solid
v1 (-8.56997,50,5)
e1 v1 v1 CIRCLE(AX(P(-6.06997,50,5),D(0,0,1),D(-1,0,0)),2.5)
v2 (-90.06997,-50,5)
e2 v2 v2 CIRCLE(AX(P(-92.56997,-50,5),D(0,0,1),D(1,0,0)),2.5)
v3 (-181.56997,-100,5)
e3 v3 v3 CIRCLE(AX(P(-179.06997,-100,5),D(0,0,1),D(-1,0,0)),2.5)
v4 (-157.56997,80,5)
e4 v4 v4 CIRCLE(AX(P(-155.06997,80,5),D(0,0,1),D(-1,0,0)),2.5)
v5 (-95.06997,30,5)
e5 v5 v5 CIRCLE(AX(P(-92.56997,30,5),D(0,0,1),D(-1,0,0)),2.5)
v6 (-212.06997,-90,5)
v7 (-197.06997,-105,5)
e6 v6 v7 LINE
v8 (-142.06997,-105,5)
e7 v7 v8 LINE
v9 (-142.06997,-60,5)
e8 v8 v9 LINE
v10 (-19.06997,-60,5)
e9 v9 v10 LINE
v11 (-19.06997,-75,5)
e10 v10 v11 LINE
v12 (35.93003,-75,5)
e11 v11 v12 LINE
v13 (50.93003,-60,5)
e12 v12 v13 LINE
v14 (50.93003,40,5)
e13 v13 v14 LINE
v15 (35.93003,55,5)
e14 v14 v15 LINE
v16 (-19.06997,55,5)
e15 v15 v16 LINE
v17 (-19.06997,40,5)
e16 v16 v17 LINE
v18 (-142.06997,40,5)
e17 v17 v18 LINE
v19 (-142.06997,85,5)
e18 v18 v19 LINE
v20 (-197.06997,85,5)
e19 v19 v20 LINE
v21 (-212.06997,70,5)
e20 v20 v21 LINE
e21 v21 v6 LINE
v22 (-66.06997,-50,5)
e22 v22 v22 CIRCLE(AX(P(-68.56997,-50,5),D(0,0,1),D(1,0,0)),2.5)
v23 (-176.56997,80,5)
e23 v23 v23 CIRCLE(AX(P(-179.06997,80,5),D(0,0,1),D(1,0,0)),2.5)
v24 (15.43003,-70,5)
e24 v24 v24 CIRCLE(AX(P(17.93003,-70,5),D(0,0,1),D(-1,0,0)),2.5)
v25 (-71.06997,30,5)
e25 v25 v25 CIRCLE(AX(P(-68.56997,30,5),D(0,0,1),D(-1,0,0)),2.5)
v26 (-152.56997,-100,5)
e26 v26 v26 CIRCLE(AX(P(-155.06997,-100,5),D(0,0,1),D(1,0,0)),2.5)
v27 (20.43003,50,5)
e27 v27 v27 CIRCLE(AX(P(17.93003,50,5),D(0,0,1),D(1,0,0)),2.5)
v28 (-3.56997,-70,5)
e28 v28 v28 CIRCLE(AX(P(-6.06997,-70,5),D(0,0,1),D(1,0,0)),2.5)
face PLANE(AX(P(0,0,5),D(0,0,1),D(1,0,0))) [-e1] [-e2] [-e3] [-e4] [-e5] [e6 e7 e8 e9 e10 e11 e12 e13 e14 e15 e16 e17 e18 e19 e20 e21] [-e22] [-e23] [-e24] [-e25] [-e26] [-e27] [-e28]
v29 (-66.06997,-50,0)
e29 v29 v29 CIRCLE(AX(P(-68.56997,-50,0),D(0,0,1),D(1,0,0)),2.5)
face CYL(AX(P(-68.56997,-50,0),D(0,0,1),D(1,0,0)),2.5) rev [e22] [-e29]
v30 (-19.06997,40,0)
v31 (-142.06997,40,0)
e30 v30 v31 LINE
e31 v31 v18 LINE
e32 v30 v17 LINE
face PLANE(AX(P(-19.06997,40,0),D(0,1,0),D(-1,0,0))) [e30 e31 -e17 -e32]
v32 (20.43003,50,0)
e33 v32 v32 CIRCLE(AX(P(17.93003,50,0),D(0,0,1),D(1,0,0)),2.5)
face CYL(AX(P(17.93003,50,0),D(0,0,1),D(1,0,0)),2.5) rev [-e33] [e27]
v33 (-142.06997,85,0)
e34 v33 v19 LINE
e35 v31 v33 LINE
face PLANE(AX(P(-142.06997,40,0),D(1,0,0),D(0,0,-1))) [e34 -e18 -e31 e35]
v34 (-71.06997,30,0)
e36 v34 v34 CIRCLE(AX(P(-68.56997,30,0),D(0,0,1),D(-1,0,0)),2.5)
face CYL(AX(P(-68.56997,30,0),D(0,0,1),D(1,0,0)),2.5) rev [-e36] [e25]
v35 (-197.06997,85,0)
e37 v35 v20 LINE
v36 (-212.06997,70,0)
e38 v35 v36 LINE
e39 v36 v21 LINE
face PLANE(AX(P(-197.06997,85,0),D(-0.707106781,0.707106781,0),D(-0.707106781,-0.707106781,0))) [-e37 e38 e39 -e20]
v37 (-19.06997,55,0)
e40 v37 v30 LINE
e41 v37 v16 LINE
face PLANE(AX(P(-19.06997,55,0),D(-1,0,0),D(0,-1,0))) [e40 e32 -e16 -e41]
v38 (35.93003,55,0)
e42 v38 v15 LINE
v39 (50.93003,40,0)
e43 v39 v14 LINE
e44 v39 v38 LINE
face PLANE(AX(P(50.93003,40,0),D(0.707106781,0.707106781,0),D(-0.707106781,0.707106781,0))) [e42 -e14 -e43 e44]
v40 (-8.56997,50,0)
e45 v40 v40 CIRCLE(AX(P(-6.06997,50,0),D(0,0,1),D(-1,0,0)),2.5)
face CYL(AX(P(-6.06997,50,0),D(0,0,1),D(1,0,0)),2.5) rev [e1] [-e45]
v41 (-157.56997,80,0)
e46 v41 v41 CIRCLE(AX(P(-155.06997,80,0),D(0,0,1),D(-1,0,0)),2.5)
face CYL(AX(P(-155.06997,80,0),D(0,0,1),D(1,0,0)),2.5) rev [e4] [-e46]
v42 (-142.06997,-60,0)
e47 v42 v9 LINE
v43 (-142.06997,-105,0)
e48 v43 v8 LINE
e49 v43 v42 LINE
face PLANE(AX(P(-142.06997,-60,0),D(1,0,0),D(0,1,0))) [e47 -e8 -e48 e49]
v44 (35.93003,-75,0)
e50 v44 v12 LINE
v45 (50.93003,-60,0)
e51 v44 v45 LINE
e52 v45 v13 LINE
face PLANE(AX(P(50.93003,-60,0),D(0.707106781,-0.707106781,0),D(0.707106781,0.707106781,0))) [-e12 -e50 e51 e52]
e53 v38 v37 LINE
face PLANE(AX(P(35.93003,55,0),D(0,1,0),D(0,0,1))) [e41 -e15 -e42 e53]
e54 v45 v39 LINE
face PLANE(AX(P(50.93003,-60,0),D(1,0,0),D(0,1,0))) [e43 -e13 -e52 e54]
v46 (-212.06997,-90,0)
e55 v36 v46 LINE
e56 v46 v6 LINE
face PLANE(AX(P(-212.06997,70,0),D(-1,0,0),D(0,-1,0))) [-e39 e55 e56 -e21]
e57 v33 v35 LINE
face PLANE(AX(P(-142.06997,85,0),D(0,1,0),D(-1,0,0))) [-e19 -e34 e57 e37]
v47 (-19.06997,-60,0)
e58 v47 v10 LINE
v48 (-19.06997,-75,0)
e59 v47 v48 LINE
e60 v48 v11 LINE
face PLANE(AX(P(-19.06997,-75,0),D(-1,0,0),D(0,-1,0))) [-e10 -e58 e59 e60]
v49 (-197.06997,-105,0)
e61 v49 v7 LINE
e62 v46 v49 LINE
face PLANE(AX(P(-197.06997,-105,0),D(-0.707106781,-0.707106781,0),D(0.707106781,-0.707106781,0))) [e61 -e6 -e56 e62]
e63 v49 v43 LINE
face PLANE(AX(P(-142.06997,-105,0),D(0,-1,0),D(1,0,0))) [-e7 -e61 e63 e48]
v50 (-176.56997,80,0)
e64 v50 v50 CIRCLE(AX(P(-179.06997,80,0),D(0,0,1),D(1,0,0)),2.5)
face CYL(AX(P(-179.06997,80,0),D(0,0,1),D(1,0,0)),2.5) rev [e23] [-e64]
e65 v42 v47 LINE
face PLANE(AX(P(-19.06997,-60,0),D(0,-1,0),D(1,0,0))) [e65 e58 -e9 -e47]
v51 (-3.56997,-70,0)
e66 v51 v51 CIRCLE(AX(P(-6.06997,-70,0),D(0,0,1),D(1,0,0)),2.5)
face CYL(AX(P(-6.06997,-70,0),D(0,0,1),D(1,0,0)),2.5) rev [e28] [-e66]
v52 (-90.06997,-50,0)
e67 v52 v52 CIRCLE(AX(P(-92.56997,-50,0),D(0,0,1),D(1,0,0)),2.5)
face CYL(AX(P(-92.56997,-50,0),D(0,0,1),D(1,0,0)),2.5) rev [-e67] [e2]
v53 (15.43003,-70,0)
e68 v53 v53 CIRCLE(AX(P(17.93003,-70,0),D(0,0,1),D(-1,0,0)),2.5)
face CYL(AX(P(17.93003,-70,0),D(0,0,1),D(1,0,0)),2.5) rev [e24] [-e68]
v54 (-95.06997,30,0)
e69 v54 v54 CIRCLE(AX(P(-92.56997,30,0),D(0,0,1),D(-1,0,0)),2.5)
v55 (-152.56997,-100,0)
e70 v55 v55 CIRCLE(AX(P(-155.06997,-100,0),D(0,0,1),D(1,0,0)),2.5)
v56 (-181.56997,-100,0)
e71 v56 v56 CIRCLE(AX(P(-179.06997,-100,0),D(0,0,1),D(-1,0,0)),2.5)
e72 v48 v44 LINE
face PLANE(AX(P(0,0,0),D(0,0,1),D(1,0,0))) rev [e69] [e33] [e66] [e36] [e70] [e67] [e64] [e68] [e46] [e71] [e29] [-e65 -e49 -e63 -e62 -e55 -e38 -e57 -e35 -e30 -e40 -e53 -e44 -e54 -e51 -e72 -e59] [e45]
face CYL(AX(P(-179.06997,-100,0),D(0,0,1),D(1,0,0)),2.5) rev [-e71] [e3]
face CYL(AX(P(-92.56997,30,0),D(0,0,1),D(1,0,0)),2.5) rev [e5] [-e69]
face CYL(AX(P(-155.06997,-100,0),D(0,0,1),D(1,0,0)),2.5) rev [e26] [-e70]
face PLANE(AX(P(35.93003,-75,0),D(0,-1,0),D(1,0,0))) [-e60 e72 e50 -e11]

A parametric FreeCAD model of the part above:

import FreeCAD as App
import Part
import Sketcher
Q = App.Units.Quantity

doc = App.newDocument("Part")
body = doc.addObject("PartDesign::Body", "Body")

# Sketch on XY plane
sketch1 = body.newObject("Sketcher::SketchObject", "Sketch")
sketch1.AttachmentSupport = (doc.getObject("XY_Plane"), [""])
sketch1.MapMode = "FlatFace"
sketch1.AttachmentOffset = App.Placement(App.Vector(0, 0, 5), App.Rotation())
sketch1.addGeometry([
    Part.LineSegment(App.Vector(50.9, -60, 0), App.Vector(50.9, 40, 0)),  # 0
    Part.LineSegment(App.Vector(50.9, 40, 0), App.Vector(35.9, 55, 0)),  # 1
    Part.LineSegment(App.Vector(35.9, 55, 0), App.Vector(-19.1, 55, 0)),  # 2
    Part.LineSegment(App.Vector(-19.1, 55, 0), App.Vector(-19.1, 40, 0)),  # 3
    Part.LineSegment(App.Vector(-19.1, 40, 0), App.Vector(-142.1, 40, 0)),  # 4
    Part.LineSegment(App.Vector(-142.1, 40, 0), App.Vector(-142.1, 85, 0)),  # 5
    Part.LineSegment(App.Vector(-142.1, 85, 0), App.Vector(-197.1, 85, 0)),  # 6
    Part.LineSegment(App.Vector(-197.1, 85, 0), App.Vector(-212.1, 70, 0)),  # 7
    Part.LineSegment(App.Vector(-212.1, 70, 0), App.Vector(-212.1, -90, 0)),  # 8
    Part.LineSegment(App.Vector(-212.1, -90, 0), App.Vector(-197.1, -105, 0)),  # 9
    Part.LineSegment(App.Vector(-197.1, -105, 0), App.Vector(-142.1, -105, 0)),  # 10
    Part.LineSegment(App.Vector(-142.1, -105, 0), App.Vector(-142.1, -60, 0)),  # 11
    Part.LineSegment(App.Vector(-142.1, -60, 0), App.Vector(-19.1, -60, 0)),  # 12
    Part.LineSegment(App.Vector(-19.1, -60, 0), App.Vector(-19.1, -75, 0)),  # 13
    Part.LineSegment(App.Vector(-19.1, -75, 0), App.Vector(35.9, -75, 0)),  # 14
    Part.LineSegment(App.Vector(35.9, -75, 0), App.Vector(50.9, -60, 0)),  # 15
    Part.Circle(App.Vector(-179.1, -100, 0), App.Vector(0, 0, 1), 2.5),  # 16
    Part.Circle(App.Vector(-155.1, -100, 0), App.Vector(0, 0, 1), 2.5),  # 17
    Part.Circle(App.Vector(-92.6, -50, 0), App.Vector(0, 0, 1), 2.5),  # 18
    Part.Circle(App.Vector(-6.1, -70, 0), App.Vector(0, 0, 1), 2.5),  # 19
    Part.Circle(App.Vector(17.9, -70, 0), App.Vector(0, 0, 1), 2.5),  # 20
    Part.Circle(App.Vector(-68.6, -50, 0), App.Vector(0, 0, 1), 2.5),  # 21
    Part.Circle(App.Vector(-92.6, 30, 0), App.Vector(0, 0, 1), 2.5),  # 22
    Part.Circle(App.Vector(-179.1, 80, 0), App.Vector(0, 0, 1), 2.5),  # 23
    Part.Circle(App.Vector(-155.1, 80, 0), App.Vector(0, 0, 1), 2.5),  # 24
    Part.Circle(App.Vector(-68.6, 30, 0), App.Vector(0, 0, 1), 2.5),  # 25
    Part.Circle(App.Vector(-6.1, 50, 0), App.Vector(0, 0, 1), 2.5),  # 26
    Part.Circle(App.Vector(17.9, 50, 0), App.Vector(0, 0, 1), 2.5),  # 27
], False)
sketch1.addConstraint([
    Sketcher.Constraint("Coincident", 0, 2, 1, 1),
    Sketcher.Constraint("Coincident", 1, 2, 2, 1),
    Sketcher.Constraint("Coincident", 2, 2, 3, 1),
    Sketcher.Constraint("Coincident", 3, 2, 4, 1),
    Sketcher.Constraint("Coincident", 4, 2, 5, 1),
    Sketcher.Constraint("Coincident", 5, 2, 6, 1),
    Sketcher.Constraint("Coincident", 6, 2, 7, 1),
    Sketcher.Constraint("Coincident", 7, 2, 8, 1),
    Sketcher.Constraint("Coincident", 8, 2, 9, 1),
    Sketcher.Constraint("Coincident", 9, 2, 10, 1),
    Sketcher.Constraint("Coincident", 10, 2, 11, 1),
    Sketcher.Constraint("Coincident", 11, 2, 12, 1),
    Sketcher.Constraint("Coincident", 12, 2, 13, 1),
    Sketcher.Constraint("Coincident", 13, 2, 14, 1),
    Sketcher.Constraint("Coincident", 14, 2, 15, 1),
    Sketcher.Constraint("Coincident", 15, 2, 0, 1),
    Sketcher.Constraint("Vertical", 0),
    Sketcher.Constraint("Horizontal", 2),
    Sketcher.Constraint("Vertical", 3),
    Sketcher.Constraint("Horizontal", 4),
    Sketcher.Constraint("Vertical", 5),
    Sketcher.Constraint("Horizontal", 6),
    Sketcher.Constraint("Vertical", 8),
    Sketcher.Constraint("Horizontal", 10),
    Sketcher.Constraint("Vertical", 11),
    Sketcher.Constraint("Horizontal", 12),
    Sketcher.Constraint("Vertical", 13),
    Sketcher.Constraint("Horizontal", 14),
    Sketcher.Constraint("Equal", 16, 17),
    Sketcher.Constraint("Equal", 17, 18),
    Sketcher.Constraint("Equal", 18, 19),
    Sketcher.Constraint("Equal", 19, 20),
    Sketcher.Constraint("Equal", 20, 21),
    Sketcher.Constraint("Equal", 21, 22),
    Sketcher.Constraint("Equal", 22, 23),
    Sketcher.Constraint("Equal", 23, 24),
    Sketcher.Constraint("Equal", 24, 25),
    Sketcher.Constraint("Equal", 25, 26),
    Sketcher.Constraint("Equal", 26, 27),
    Sketcher.Constraint("Perpendicular", 1, 7),
    Sketcher.Constraint("Perpendicular", 7, 9),
    Sketcher.Constraint("Perpendicular", 9, 15),
    Sketcher.Constraint("Horizontal", 16, 3, 17, 3),
    Sketcher.Constraint("Horizontal", 19, 3, 20, 3),
    Sketcher.Constraint("Horizontal", 18, 3, 21, 3),
    Sketcher.Constraint("Horizontal", 23, 3, 24, 3),
    Sketcher.Constraint("Horizontal", 22, 3, 25, 3),
    Sketcher.Constraint("Horizontal", 26, 3, 27, 3),
    Sketcher.Constraint("Horizontal", 0, 2, 3, 2),
    Sketcher.Constraint("Horizontal", 12, 2, 15, 2),
    Sketcher.Constraint("Vertical", 18, 3, 22, 3),
    Sketcher.Constraint("Vertical", 16, 3, 23, 3),
    Sketcher.Constraint("Vertical", 17, 3, 24, 3),
    Sketcher.Constraint("Vertical", 21, 3, 25, 3),
    Sketcher.Constraint("Vertical", 19, 3, 26, 3),
    Sketcher.Constraint("Vertical", 20, 3, 27, 3),
    Sketcher.Constraint("Vertical", 6, 2, 9, 2),
    Sketcher.Constraint("Vertical", 5, 2, 10, 2),
    Sketcher.Constraint("Vertical", 3, 2, 12, 2),
    Sketcher.Constraint("Vertical", 1, 2, 14, 2),
    Sketcher.Constraint("Equal", 2, 6),
    Sketcher.Constraint("Equal", 5, 11),
    Sketcher.Constraint("Equal", 3, 13),
    Sketcher.Constraint("Equal", 1, 7),
    Sketcher.Constraint("Diameter", 16, Q("5 mm")),
    Sketcher.Constraint("DistanceX", 2, 2, 2, 1, Q("55 mm")),
    Sketcher.Constraint("DistanceX", 4, 2, 4, 1, Q("123 mm")),
    Sketcher.Constraint("DistanceY", 0, 1, 0, 2, Q("100 mm")),
    Sketcher.Constraint("DistanceY", 3, 2, 3, 1, Q("15 mm")),
    Sketcher.Constraint("DistanceY", 5, 1, 5, 2, Q("45 mm")),
    Sketcher.Constraint("DistanceY", 16, 3, -1, 1, Q("100 mm")),
    Sketcher.Constraint("DistanceY", 18, 3, -1, 1, Q("50 mm")),
    Sketcher.Constraint("DistanceY", 19, 3, -1, 1, Q("70 mm")),
    Sketcher.Constraint("DistanceY", -1, 1, 22, 3, Q("30 mm")),
    Sketcher.Constraint("DistanceY", -1, 1, 23, 3, Q("80 mm")),
    Sketcher.Constraint("DistanceY", -1, 1, 26, 3, Q("50 mm")),
    Sketcher.Constraint("DistanceY", -1, 1, 0, 2, Q("40 mm")),
    Sketcher.Constraint("DistanceX", 16, 3, 17, 3, Q("24 mm")),
    Sketcher.Constraint("DistanceX", 17, 3, 19, 3, Q("149 mm")),
    Sketcher.Constraint("DistanceX", 19, 3, 20, 3, Q("24 mm")),
    Sketcher.Constraint("DistanceX", 18, 3, 21, 3, Q("24 mm")),
    Sketcher.Constraint("DistanceX", 27, 3, 0, 2, Q("33 mm")),
    Sketcher.Constraint("DistanceX", 17, 3, 18, 3, Q("62.5 mm")),
    Sketcher.Constraint("DistanceX", 16, 3, -1, 1, Q("179.06997 mm")),
])
pad1 = body.newObject("PartDesign::Pad", "Pad")
pad1.Profile = sketch1
pad1.Length = 5
pad1.Reversed = True

doc.recompute()
